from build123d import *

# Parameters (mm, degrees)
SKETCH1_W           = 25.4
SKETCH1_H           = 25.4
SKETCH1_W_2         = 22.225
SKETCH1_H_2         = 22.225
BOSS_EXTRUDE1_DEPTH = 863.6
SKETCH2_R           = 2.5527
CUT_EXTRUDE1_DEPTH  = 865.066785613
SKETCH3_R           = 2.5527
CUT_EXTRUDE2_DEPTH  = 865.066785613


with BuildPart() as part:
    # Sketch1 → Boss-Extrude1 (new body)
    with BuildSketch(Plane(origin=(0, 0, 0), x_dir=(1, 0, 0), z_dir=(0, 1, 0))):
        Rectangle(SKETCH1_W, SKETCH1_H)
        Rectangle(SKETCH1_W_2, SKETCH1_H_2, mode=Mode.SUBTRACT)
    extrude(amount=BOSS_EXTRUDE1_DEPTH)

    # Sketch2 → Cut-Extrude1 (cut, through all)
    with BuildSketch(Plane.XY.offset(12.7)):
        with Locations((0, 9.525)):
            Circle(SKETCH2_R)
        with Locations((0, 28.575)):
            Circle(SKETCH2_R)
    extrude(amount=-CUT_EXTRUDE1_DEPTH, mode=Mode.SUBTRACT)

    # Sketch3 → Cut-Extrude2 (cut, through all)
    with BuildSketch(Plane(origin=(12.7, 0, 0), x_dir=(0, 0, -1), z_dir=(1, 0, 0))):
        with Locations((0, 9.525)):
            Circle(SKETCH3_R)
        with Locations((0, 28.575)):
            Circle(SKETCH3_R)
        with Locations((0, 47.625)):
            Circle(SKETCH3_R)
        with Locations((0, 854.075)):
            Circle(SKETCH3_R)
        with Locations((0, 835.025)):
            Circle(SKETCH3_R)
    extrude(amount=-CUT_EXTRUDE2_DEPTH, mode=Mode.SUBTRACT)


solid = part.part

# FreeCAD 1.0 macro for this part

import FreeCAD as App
import Part
import Sketcher

V = App.Vector
Q = App.Units.Quantity


def add_polygon(sketch, points):
    """Adds a closed chain of lines whose ends are joined by coincident constraints."""
    first, n = sketch.GeometryCount, len(points)
    for a, b in zip(points, points[1:] + points[:1]):
        sketch.addGeometry(Part.LineSegment(App.Vector(*a, 0), App.Vector(*b, 0)), False)
    for i in range(n):
        sketch.addConstraint(Sketcher.Constraint("Coincident", first + i, 2, first + (i + 1) % n, 1))

doc = App.newDocument("Part")
body = doc.addObject("PartDesign::Body", "Body")

# Sketch on XZ plane
sketch1 = body.newObject("Sketcher::SketchObject", "Sketch")
sketch1.AttachmentSupport = (doc.getObject("XZ_Plane"), [""])
sketch1.MapMode = "FlatFace"
add_polygon(sketch1, [(-12.7, -12.7), (-12.7, 12.7), (12.7, 12.7), (12.7, -12.7)])  # lines 0-3
add_polygon(sketch1, [(11.1125, 11.1125), (-11.1125, 11.1125), (-11.1125, -11.1125), (11.1125, -11.1125)])  # lines 4-7
sketch1.addConstraint(Sketcher.Constraint("Vertical", 0))
sketch1.addConstraint(Sketcher.Constraint("Horizontal", 1))
sketch1.addConstraint(Sketcher.Constraint("Vertical", 2))
sketch1.addConstraint(Sketcher.Constraint("Horizontal", 3))
sketch1.addConstraint(Sketcher.Constraint("Horizontal", 4))
sketch1.addConstraint(Sketcher.Constraint("Vertical", 5))
sketch1.addConstraint(Sketcher.Constraint("Horizontal", 6))
sketch1.addConstraint(Sketcher.Constraint("Vertical", 7))
sketch1.addConstraint(Sketcher.Constraint("Symmetric", 0, 2, 2, 2, -1, 1))
sketch1.addConstraint(Sketcher.Constraint("Symmetric", 4, 2, 6, 2, -1, 1))
sketch1.addConstraint(Sketcher.Constraint("Equal", 3, 0))
sketch1.addConstraint(Sketcher.Constraint("Equal", 6, 5))
sketch1.addConstraint(Sketcher.Constraint("DistanceX", 1, 1, 1, 2, Q("1 in")))
sketch1.addConstraint(Sketcher.Constraint("DistanceX", 4, 2, 4, 1, Q("0.875 in")))
pad1 = body.newObject("PartDesign::Pad", "Pad")
pad1.Profile = sketch1
pad1.Length = Q("34 in")
pad1.Reversed = True

# Sketch on XY plane
sketch2 = body.newObject("Sketcher::SketchObject", "Sketch001")
sketch2.AttachmentSupport = (doc.getObject("XY_Plane"), [""])
sketch2.MapMode = "FlatFace"
sketch2.AttachmentOffset = App.Placement(V(0, 0, 0.5 * 25.4), App.Rotation())
sketch2.addGeometry(Part.Circle(V(0, 9.525, 0), V(0, 0, 1), 2.5527), False)
sketch2.addGeometry(Part.Circle(V(0, 28.575, 0), V(0, 0, 1), 2.5527), False)
sketch2.addConstraint(Sketcher.Constraint("Equal", 0, 1))
sketch2.addConstraint(Sketcher.Constraint("PointOnObject", 0, 3, -2))
sketch2.addConstraint(Sketcher.Constraint("PointOnObject", 1, 3, -2))
sketch2.addConstraint(Sketcher.Constraint("Diameter", 0, Q("0.201 in")))
sketch2.addConstraint(Sketcher.Constraint("DistanceY", 0, 3, 1, 3, Q("0.75 in")))
sketch2.addConstraint(Sketcher.Constraint("DistanceY", -1, 1, 0, 3, Q("0.375 in")))
pocket1 = body.newObject("PartDesign::Pocket", "Pocket")
pocket1.Profile = sketch2
pocket1.Type = "ThroughAll"

# Sketch on YZ plane
sketch3 = body.newObject("Sketcher::SketchObject", "Sketch002")
sketch3.AttachmentSupport = (doc.getObject("YZ_Plane"), [""])
sketch3.MapMode = "FlatFace"
sketch3.AttachmentOffset = App.Placement(V(0, 0, 0.5 * 25.4), App.Rotation())
sketch3.addGeometry(Part.Circle(V(9.525, 0, 0), V(0, 0, 1), 2.5527), False)
sketch3.addGeometry(Part.Circle(V(28.575, 0, 0), V(0, 0, 1), 2.5527), False)
sketch3.addGeometry(Part.Circle(V(47.625, 0, 0), V(0, 0, 1), 2.5527), False)
sketch3.addGeometry(Part.Circle(V(854.075, 0, 0), V(0, 0, 1), 2.5527), False)
sketch3.addGeometry(Part.Circle(V(835.025, 0, 0), V(0, 0, 1), 2.5527), False)
sketch3.addConstraint(Sketcher.Constraint("Equal", 0, 1))
sketch3.addConstraint(Sketcher.Constraint("Equal", 1, 2))
sketch3.addConstraint(Sketcher.Constraint("Equal", 2, 3))
sketch3.addConstraint(Sketcher.Constraint("Equal", 3, 4))
sketch3.addConstraint(Sketcher.Constraint("PointOnObject", 0, 3, -1))
sketch3.addConstraint(Sketcher.Constraint("PointOnObject", 1, 3, -1))
sketch3.addConstraint(Sketcher.Constraint("PointOnObject", 2, 3, -1))
sketch3.addConstraint(Sketcher.Constraint("PointOnObject", 3, 3, -1))
sketch3.addConstraint(Sketcher.Constraint("PointOnObject", 4, 3, -1))
sketch3.addConstraint(Sketcher.Constraint("Diameter", 0, Q("0.201 in")))
sketch3.addConstraint(Sketcher.Constraint("DistanceX", 2, 3, 4, 3, Q("31 in")))
sketch3.addConstraint(Sketcher.Constraint("DistanceX", 0, 3, 2, 3, Q("1.5 in")))
sketch3.addConstraint(Sketcher.Constraint("DistanceX", 1, 3, 3, 3, Q("32.5 in")))
sketch3.addConstraint(Sketcher.Constraint("DistanceX", 0, 3, 1, 3, Q("0.75 in")))
sketch3.addConstraint(Sketcher.Constraint("DistanceX", -1, 1, 0, 3, Q("0.375 in")))
pocket2 = body.newObject("PartDesign::Pocket", "Pocket001")
pocket2.Profile = sketch3
pocket2.Type = "ThroughAll"

doc.recompute()
